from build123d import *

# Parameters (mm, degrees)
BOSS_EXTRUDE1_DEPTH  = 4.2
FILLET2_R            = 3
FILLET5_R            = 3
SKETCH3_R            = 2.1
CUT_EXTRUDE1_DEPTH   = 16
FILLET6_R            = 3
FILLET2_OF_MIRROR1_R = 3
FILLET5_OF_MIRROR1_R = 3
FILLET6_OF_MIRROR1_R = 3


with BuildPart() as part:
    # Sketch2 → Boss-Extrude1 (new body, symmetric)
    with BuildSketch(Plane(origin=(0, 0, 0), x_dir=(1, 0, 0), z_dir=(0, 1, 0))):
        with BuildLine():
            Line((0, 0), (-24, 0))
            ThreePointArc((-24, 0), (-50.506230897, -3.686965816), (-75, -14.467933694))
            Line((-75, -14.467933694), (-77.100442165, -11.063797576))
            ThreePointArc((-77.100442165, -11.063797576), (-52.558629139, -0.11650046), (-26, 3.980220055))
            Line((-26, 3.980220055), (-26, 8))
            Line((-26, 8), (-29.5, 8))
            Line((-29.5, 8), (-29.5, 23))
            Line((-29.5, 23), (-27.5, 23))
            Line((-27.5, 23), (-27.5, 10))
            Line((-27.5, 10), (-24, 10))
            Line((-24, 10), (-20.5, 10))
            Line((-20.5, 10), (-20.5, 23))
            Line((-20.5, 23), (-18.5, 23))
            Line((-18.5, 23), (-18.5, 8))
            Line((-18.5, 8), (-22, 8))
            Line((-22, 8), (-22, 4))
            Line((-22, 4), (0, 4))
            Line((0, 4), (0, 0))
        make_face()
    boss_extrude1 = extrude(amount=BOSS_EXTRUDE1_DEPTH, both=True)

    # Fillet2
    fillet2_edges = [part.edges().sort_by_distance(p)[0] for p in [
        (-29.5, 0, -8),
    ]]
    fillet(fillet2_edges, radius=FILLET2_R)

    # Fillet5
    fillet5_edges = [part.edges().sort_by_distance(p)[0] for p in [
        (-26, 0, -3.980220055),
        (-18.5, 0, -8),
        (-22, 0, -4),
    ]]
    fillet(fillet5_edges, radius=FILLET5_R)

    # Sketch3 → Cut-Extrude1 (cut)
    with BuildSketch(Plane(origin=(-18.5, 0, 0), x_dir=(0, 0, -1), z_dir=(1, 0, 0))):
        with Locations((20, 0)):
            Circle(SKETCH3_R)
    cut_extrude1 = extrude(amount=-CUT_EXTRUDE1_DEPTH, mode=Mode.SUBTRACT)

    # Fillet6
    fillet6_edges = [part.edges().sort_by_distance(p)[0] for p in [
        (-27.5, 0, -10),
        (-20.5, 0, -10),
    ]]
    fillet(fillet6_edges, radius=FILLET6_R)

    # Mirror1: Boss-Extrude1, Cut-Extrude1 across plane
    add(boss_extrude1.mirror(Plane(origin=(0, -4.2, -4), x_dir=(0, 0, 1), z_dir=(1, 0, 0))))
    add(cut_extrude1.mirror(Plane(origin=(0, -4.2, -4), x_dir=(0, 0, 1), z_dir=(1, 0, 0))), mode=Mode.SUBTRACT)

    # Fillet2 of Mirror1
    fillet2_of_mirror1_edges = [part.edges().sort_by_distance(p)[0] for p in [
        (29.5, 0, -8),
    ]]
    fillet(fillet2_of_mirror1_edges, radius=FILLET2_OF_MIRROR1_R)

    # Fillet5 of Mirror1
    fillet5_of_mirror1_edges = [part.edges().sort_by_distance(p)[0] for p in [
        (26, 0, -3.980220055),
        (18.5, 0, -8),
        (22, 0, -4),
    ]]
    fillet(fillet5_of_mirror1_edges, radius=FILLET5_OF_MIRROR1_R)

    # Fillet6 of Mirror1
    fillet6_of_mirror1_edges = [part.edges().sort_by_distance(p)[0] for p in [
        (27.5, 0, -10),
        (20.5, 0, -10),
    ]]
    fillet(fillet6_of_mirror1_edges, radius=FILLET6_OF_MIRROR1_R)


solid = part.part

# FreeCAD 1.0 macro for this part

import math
import FreeCAD as App
import Part
import Sketcher

V = App.Vector


def edges_at(feature, points):
    """Names of the edges that pass closest to the given points."""
    edges = feature.Shape.Edges
    near = lambda p: min(range(len(edges)), key=lambda i: edges[i].distToShape(Part.Vertex(*p))[0])
    return sorted({f"Edge{near(p) + 1}" for p in points})

doc = App.newDocument("Part")
body = doc.addObject("PartDesign::Body", "Body")

# Sketch on XZ plane
sketch1 = body.newObject("Sketcher::SketchObject", "Sketch")
sketch1.AttachmentSupport = (doc.getObject("XZ_Plane"), [""])
sketch1.MapMode = "FlatFace"
sketch1.addGeometry([
    Part.LineSegment(V(-24, 0, 0), V(0, 0, 0)),  # 0
    Part.LineSegment(V(0, 0, 0), V(0, -4, 0)),  # 1
    Part.LineSegment(V(0, -4, 0), V(-22, -4, 0)),  # 2
    Part.LineSegment(V(-22, -4, 0), V(-22, -8, 0)),  # 3
    Part.LineSegment(V(-22, -8, 0), V(-18.5, -8, 0)),  # 4
    Part.LineSegment(V(-18.5, -8, 0), V(-18.5, -23, 0)),  # 5
    Part.LineSegment(V(-18.5, -23, 0), V(-20.5, -23, 0)),  # 6
    Part.LineSegment(V(-20.5, -23, 0), V(-20.5, -10, 0)),  # 7
    Part.LineSegment(V(-20.5, -10, 0), V(-27.5, -10, 0)),  # 8
    Part.LineSegment(V(-27.5, -10, 0), V(-27.5, -23, 0)),  # 9
    Part.LineSegment(V(-27.5, -23, 0), V(-29.5, -23, 0)),  # 10
    Part.LineSegment(V(-29.5, -23, 0), V(-29.5, -8, 0)),  # 11
    Part.LineSegment(V(-29.5, -8, 0), V(-26, -8, 0)),  # 12
    Part.LineSegment(V(-26, -8, 0), V(-26, -3.98022, 0)),  # 13
    Part.ArcOfCircle(Part.Circle(V(-24, 97.122408, 0), V(0, 0, 1), 101.122408), math.radians(-121.675685), math.radians(-91.13327)),  # 14
    Part.LineSegment(V(-77.100442, 11.063798, 0), V(-75, 14.467934, 0)),  # 15
    Part.ArcOfCircle(Part.Circle(V(-24, 97.122408, 0), V(0, 0, 1), 97.122408), math.radians(-121.675685), math.radians(-90)),  # 16
], False)
sketch1.addConstraint([
    Sketcher.Constraint("Coincident", 0, 2, 1, 1),
    Sketcher.Constraint("Coincident", 1, 2, 2, 1),
    Sketcher.Constraint("Coincident", 2, 2, 3, 1),
    Sketcher.Constraint("Coincident", 3, 2, 4, 1),
    Sketcher.Constraint("Coincident", 4, 2, 5, 1),
    Sketcher.Constraint("Coincident", 5, 2, 6, 1),
    Sketcher.Constraint("Coincident", 6, 2, 7, 1),
    Sketcher.Constraint("Coincident", 7, 2, 8, 1),
    Sketcher.Constraint("Coincident", 8, 2, 9, 1),
    Sketcher.Constraint("Coincident", 9, 2, 10, 1),
    Sketcher.Constraint("Coincident", 10, 2, 11, 1),
    Sketcher.Constraint("Coincident", 11, 2, 12, 1),
    Sketcher.Constraint("Coincident", 12, 2, 13, 1),
    Sketcher.Constraint("Coincident", 13, 2, 14, 2),
    Sketcher.Constraint("Coincident", 14, 1, 15, 1),
    Sketcher.Constraint("Coincident", 15, 2, 16, 1),
    Sketcher.Constraint("Tangent", 16, 2, 0, 1),
    Sketcher.Constraint("Horizontal", 0),
    Sketcher.Constraint("Vertical", 1),
    Sketcher.Constraint("Horizontal", 2),
    Sketcher.Constraint("Vertical", 3),
    Sketcher.Constraint("Horizontal", 4),
    Sketcher.Constraint("Vertical", 5),
    Sketcher.Constraint("Horizontal", 6),
    Sketcher.Constraint("Vertical", 7),
    Sketcher.Constraint("Horizontal", 8),
    Sketcher.Constraint("Vertical", 9),
    Sketcher.Constraint("Horizontal", 10),
    Sketcher.Constraint("Vertical", 11),
    Sketcher.Constraint("Horizontal", 12),
    Sketcher.Constraint("Vertical", 13),
    Sketcher.Constraint("Coincident", 0, 2, -1, 1),
    Sketcher.Constraint("Coincident", 16, 3, 14, 3),
    Sketcher.Constraint("Horizontal", 6, 2, 9, 2),
    Sketcher.Constraint("Horizontal", 4, 2, 11, 2),
    Sketcher.Constraint("Equal", 6, 10),
    Sketcher.Constraint("Equal", 4, 12),
    Sketcher.Constraint("Equal", 1, 3),
    Sketcher.Constraint("DistanceX", 0, 1, 0, 2, 24.0),
    Sketcher.Constraint("DistanceX", 2, 2, 2, 1, 22.0),
    Sketcher.Constraint("DistanceX", 6, 2, 6, 1, 2.0),
    Sketcher.Constraint("DistanceX", 8, 2, 8, 1, 7.0),
    Sketcher.Constraint("DistanceY", 1, 2, 1, 1, 4.0),
    Sketcher.Constraint("DistanceY", 5, 2, 5, 1, 15.0),
    Sketcher.Constraint("DistanceY", 7, 1, 7, 2, 13.0),
    Sketcher.Constraint("Distance", 15, 4.0),
    Sketcher.Constraint("DistanceX", 4, 1, 4, 2, 3.5),
    Sketcher.Constraint("DistanceX", 15, 2, -1, 1, 75.0),
    Sketcher.Constraint("Radius", 14, 101.122408),
    Sketcher.Constraint("DistanceX", 14, 1, -1, 1, 77.100442),
])
pad1 = body.newObject("PartDesign::Pad", "Pad")
pad1.Profile = sketch1
pad1.Length = 8.4
pad1.Midplane = True
doc.recompute()

fillet = body.newObject("PartDesign::Fillet", "Fillet")
fillet.Base = (pad1, edges_at(pad1, [(-29.5, 0, -8)]))
fillet.Radius = 3
doc.recompute()

fillet2 = body.newObject("PartDesign::Fillet", "Fillet001")
fillet2.Base = (fillet, edges_at(fillet, [(-26, 0, -3.98), (-18.5, 0, -8), (-22, 0, -4)]))
fillet2.Radius = 3

# Sketch on YZ plane
sketch2 = body.newObject("Sketcher::SketchObject", "Sketch001")
sketch2.AttachmentSupport = (doc.getObject("YZ_Plane"), [""])
sketch2.MapMode = "FlatFace"
sketch2.AttachmentOffset = App.Placement(V(0, 0, -18.5), App.Rotation())
sketch2.addGeometry(Part.Circle(V(0, -20, 0), V(0, 0, 1), 2.1), False)
sketch2.addConstraint([
    Sketcher.Constraint("PointOnObject", 0, 3, -2),
    Sketcher.Constraint("Diameter", 0, 4.2),
    Sketcher.Constraint("DistanceY", 0, 3, -1, 1, 20.0),
])
pocket1 = body.newObject("PartDesign::Pocket", "Pocket")
pocket1.Profile = sketch2
pocket1.Length = 16
doc.recompute()

fillet3 = body.newObject("PartDesign::Fillet", "Fillet002")
fillet3.Base = (pocket1, edges_at(pocket1, [(-27.5, 0, -10), (-20.5, 0, -10)]))
fillet3.Radius = 3
doc.recompute()

mirrored = body.newObject("PartDesign::Mirrored", "Mirrored")
mirrored.Originals = [pad1, pocket1]
mirrored.MirrorPlane = (doc.getObject("YZ_Plane"), [""])
body.Tip = mirrored
doc.recompute()

fillet4 = body.newObject("PartDesign::Fillet", "Fillet003")
fillet4.Base = (mirrored, edges_at(mirrored, [(29.5, 0, -8)]))
fillet4.Radius = 3
doc.recompute()

fillet5 = body.newObject("PartDesign::Fillet", "Fillet004")
fillet5.Base = (fillet4, edges_at(fillet4, [(26, 0, -3.98), (18.5, 0, -8), (22, 0, -4)]))
fillet5.Radius = 3
doc.recompute()

fillet6 = body.newObject("PartDesign::Fillet", "Fillet005")
fillet6.Base = (fillet5, edges_at(fillet5, [(27.5, 0, -10), (20.5, 0, -10)]))
fillet6.Radius = 3

doc.recompute()
